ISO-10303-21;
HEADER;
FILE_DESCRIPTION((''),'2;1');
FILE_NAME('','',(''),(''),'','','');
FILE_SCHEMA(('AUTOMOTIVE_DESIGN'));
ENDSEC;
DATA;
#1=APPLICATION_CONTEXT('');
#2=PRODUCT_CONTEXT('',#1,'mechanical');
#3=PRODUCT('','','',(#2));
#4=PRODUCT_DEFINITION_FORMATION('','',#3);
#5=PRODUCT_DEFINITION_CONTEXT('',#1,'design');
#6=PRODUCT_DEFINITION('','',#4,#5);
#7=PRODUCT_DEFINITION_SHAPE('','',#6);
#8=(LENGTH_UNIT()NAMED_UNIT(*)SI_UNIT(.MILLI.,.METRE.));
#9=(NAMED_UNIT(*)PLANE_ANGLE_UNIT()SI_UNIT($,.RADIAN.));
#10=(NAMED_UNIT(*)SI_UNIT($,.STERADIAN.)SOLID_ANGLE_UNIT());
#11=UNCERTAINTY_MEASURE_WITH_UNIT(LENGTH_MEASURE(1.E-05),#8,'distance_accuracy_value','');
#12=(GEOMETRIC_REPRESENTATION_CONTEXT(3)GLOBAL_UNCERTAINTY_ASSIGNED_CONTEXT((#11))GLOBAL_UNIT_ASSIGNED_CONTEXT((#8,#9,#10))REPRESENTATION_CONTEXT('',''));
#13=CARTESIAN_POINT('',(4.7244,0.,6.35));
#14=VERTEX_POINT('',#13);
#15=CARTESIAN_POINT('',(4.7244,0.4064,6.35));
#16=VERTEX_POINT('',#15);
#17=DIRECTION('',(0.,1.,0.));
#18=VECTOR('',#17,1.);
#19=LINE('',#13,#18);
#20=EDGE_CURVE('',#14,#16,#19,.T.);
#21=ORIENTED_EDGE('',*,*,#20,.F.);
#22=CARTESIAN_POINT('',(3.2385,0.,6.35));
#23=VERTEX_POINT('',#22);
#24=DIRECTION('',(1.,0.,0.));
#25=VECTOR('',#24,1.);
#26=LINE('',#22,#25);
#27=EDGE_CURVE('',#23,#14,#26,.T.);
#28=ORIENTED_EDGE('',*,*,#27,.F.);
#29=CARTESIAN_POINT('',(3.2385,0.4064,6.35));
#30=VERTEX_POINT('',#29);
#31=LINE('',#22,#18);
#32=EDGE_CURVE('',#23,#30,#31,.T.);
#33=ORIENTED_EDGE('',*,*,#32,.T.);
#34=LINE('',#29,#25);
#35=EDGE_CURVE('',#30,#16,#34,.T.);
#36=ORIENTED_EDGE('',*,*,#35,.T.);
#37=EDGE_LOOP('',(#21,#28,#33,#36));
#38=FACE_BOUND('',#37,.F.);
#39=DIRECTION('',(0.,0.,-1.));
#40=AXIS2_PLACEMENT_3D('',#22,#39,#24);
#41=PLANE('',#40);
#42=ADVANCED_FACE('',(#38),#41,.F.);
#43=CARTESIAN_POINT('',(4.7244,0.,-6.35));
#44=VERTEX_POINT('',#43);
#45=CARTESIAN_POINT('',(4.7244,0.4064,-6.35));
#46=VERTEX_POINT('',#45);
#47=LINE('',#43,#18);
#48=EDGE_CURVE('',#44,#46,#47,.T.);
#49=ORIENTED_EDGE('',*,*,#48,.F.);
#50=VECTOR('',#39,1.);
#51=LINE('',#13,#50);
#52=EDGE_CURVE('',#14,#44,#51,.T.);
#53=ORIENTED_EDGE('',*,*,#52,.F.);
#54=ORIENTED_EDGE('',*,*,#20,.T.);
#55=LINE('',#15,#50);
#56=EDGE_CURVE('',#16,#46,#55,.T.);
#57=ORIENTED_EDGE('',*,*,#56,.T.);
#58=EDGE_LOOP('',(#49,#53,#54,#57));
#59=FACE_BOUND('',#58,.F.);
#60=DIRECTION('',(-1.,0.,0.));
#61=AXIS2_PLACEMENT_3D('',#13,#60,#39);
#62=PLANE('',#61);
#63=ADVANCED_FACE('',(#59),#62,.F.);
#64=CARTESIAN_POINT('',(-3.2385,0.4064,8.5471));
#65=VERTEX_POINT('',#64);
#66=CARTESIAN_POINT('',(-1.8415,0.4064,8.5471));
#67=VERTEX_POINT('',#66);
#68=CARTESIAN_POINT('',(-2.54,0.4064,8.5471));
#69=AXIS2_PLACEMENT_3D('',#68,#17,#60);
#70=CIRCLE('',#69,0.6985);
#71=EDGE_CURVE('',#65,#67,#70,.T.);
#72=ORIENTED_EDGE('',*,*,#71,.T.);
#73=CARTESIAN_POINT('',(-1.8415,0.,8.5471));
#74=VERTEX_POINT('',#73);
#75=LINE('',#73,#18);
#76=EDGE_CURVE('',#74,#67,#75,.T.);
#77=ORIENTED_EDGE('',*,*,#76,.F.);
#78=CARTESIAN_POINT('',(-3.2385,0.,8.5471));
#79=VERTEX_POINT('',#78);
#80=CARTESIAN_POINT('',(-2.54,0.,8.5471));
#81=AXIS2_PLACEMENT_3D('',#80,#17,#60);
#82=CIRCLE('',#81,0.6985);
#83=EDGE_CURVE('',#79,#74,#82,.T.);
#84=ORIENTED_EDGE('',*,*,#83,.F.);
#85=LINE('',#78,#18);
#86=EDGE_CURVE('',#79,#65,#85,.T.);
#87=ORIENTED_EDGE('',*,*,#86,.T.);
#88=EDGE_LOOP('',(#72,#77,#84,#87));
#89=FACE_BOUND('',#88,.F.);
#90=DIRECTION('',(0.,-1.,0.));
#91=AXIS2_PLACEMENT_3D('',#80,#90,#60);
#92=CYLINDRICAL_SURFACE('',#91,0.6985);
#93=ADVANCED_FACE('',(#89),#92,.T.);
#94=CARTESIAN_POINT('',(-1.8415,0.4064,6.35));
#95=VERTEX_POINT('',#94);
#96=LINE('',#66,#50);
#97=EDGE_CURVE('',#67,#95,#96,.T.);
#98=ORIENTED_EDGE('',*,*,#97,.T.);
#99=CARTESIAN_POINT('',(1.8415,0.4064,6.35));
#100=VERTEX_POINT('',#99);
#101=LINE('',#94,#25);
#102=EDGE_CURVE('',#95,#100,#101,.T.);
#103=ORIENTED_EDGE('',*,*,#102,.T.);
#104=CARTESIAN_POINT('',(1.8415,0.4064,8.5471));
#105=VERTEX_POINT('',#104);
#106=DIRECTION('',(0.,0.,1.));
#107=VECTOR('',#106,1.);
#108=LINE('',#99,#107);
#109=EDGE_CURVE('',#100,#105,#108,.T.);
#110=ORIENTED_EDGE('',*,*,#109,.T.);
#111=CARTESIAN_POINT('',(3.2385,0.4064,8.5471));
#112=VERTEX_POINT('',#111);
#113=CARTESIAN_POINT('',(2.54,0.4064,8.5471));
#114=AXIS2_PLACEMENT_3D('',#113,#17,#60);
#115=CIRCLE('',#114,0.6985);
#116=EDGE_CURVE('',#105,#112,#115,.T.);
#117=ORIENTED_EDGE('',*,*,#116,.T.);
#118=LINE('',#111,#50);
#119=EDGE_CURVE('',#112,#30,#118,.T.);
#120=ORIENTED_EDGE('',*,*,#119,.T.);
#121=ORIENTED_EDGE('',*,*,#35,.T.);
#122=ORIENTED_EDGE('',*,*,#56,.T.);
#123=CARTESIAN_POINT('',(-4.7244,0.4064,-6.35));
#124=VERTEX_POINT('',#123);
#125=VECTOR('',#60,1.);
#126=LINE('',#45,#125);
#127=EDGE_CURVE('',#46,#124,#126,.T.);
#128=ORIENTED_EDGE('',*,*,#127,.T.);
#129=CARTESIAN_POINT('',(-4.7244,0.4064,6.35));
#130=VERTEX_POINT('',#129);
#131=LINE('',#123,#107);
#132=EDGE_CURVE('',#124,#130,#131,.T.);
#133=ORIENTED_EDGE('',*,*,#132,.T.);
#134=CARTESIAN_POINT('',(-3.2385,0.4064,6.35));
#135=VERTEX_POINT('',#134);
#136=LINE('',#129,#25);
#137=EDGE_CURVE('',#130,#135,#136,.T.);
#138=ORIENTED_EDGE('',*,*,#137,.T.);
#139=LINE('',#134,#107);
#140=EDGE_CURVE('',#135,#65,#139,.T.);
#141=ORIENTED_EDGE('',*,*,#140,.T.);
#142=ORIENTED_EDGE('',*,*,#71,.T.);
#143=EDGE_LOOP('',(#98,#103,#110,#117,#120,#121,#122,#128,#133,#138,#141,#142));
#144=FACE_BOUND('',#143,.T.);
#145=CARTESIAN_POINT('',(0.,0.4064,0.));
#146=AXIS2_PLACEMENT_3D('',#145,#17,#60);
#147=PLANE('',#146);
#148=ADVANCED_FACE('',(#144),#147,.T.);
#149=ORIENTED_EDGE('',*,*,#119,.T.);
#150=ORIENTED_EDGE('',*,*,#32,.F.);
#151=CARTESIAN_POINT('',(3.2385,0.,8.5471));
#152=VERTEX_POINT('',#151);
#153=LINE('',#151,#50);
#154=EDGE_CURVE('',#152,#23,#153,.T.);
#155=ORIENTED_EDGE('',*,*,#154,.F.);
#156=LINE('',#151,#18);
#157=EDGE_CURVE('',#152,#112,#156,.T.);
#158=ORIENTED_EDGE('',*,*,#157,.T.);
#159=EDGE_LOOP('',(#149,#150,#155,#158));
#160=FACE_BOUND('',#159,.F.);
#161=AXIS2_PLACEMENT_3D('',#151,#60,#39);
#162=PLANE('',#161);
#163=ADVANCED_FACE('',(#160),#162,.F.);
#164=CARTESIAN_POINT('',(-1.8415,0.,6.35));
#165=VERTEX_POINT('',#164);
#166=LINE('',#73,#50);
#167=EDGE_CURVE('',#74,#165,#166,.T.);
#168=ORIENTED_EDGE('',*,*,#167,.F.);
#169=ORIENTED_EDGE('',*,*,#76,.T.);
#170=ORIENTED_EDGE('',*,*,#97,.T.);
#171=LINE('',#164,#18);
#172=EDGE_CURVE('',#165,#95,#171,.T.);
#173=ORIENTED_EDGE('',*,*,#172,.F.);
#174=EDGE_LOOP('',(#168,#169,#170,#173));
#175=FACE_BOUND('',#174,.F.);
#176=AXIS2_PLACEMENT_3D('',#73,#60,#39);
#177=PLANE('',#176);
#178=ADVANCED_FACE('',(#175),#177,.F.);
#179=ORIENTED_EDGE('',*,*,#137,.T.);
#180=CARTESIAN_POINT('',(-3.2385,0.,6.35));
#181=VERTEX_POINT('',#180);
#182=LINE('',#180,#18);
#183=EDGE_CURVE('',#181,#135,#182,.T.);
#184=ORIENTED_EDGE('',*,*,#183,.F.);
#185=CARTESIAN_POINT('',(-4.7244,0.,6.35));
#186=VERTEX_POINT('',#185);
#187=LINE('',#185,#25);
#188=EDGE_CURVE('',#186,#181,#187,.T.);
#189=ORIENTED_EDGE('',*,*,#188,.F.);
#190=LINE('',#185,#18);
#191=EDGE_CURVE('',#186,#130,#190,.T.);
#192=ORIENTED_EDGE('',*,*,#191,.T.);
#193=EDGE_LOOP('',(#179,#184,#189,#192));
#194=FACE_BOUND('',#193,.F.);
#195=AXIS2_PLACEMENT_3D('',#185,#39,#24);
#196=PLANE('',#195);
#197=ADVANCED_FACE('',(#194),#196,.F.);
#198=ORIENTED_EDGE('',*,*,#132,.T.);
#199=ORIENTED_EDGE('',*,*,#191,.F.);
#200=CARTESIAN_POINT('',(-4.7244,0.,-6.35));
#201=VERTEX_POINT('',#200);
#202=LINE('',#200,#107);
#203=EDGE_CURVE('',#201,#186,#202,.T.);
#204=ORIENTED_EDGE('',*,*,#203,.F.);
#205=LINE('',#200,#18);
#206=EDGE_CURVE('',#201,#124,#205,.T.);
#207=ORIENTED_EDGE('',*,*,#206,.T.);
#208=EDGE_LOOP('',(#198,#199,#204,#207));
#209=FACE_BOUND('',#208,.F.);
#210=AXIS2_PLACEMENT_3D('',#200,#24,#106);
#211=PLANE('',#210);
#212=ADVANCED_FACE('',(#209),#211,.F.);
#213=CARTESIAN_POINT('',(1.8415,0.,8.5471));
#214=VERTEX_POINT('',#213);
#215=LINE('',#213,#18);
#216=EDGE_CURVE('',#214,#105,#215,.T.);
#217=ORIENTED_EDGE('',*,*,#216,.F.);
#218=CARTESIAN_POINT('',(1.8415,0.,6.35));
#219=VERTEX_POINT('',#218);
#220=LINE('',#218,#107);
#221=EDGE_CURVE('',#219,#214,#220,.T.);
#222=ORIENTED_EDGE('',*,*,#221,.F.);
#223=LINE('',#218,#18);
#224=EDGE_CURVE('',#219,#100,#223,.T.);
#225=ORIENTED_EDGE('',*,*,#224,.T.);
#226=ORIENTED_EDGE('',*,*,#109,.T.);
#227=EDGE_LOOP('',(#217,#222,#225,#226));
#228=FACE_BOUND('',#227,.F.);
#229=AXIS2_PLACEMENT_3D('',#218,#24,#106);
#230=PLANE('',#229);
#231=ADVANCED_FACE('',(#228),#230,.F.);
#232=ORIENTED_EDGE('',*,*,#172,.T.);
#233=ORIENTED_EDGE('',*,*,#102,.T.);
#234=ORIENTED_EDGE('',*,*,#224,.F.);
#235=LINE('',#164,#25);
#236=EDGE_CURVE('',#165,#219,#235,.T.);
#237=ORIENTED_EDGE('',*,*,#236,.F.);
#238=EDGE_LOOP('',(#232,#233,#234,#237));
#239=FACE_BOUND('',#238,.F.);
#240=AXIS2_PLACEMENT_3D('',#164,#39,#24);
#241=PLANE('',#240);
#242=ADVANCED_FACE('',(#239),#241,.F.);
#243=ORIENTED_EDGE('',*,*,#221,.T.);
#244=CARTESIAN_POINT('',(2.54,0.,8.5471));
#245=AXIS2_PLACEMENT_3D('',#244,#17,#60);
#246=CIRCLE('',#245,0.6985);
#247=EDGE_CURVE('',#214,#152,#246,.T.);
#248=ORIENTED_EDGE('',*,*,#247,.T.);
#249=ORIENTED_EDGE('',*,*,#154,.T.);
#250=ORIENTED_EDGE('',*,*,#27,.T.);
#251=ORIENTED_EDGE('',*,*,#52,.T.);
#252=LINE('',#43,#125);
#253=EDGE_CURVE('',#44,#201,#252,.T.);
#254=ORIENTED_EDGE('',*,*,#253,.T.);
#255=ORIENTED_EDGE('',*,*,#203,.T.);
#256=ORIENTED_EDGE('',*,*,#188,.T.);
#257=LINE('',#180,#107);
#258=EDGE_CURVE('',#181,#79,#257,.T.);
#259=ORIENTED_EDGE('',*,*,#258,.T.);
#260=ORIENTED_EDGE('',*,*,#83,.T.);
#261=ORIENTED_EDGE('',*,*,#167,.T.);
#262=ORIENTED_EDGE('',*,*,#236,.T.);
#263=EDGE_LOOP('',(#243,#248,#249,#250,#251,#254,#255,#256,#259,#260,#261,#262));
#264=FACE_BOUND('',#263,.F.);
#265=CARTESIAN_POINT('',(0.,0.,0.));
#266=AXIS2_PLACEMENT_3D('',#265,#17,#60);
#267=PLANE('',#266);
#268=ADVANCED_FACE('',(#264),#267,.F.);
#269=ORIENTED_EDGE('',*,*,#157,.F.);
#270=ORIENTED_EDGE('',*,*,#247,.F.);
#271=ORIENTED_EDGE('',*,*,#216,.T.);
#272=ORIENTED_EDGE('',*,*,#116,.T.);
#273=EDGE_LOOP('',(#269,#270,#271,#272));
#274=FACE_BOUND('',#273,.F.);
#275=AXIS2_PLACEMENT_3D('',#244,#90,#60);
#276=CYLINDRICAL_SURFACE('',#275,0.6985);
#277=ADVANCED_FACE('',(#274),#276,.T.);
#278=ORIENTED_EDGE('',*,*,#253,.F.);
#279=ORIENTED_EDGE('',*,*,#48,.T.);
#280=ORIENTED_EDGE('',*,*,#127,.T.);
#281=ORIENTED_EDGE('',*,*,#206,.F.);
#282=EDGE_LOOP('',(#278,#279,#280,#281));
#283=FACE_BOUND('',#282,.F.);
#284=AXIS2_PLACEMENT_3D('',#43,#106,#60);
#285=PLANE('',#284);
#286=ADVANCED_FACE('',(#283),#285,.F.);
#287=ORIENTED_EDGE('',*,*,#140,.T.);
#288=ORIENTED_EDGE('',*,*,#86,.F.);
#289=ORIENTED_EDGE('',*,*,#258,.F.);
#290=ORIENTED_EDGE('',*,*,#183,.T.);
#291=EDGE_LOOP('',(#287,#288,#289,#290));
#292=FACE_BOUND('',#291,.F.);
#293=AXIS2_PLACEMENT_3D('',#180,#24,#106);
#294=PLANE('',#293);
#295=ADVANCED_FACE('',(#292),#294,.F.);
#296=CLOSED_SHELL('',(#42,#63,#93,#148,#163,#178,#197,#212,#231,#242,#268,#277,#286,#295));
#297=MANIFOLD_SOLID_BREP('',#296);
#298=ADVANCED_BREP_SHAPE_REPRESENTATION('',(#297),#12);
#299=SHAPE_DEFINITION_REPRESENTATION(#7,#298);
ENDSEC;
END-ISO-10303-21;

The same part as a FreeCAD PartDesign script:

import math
import FreeCAD as App
import Part
import Sketcher
from FreeCAD import Vector
Q = App.Units.Quantity

doc = App.newDocument("Part")
body = doc.addObject("PartDesign::Body", "Body")

# Sketch on XZ plane
sketch1 = body.newObject("Sketcher::SketchObject", "Sketch")
sketch1.AttachmentSupport = (doc.getObject("XZ_Plane"), [""])
sketch1.MapMode = "FlatFace"
sketch1.addGeometry([
    Part.LineSegment(Vector(-4.7, -6.3, 0), Vector(-4.7, 6.3, 0)),  # 0
    Part.LineSegment(Vector(-4.7, 6.3, 0), Vector(-3.2, 6.3, 0)),  # 1
    Part.LineSegment(Vector(-3.2, 6.3, 0), Vector(-3.2, 8.5, 0)),  # 2
    Part.ArcOfCircle(Part.Circle(Vector(-2.5, 8.5, 0), Vector(0, 0, 1), 0.7), math.radians(0), math.radians(180)),  # 3
    Part.LineSegment(Vector(-1.8, 8.5, 0), Vector(-1.8, 6.3, 0)),  # 4
    Part.LineSegment(Vector(-1.8, 6.3, 0), Vector(1.8, 6.3, 0)),  # 5
    Part.LineSegment(Vector(1.8, 6.3, 0), Vector(1.8, 8.5, 0)),  # 6
    Part.ArcOfCircle(Part.Circle(Vector(2.5, 8.5, 0), Vector(0, 0, 1), 0.7), math.radians(0), math.radians(180)),  # 7
    Part.LineSegment(Vector(3.2, 8.5, 0), Vector(3.2, 6.3, 0)),  # 8
    Part.LineSegment(Vector(3.2, 6.3, 0), Vector(4.7, 6.3, 0)),  # 9
    Part.LineSegment(Vector(4.7, 6.3, 0), Vector(4.7, -6.3, 0)),  # 10
    Part.LineSegment(Vector(4.7, -6.3, 0), Vector(-4.7, -6.3, 0)),  # 11
], False)
sketch1.addConstraint([
    Sketcher.Constraint("Coincident", 0, 2, 1, 1),
    Sketcher.Constraint("Coincident", 1, 2, 2, 1),
    Sketcher.Constraint("Tangent", 2, 2, 3, 2),
    Sketcher.Constraint("Tangent", 3, 1, 4, 1),
    Sketcher.Constraint("Coincident", 4, 2, 5, 1),
    Sketcher.Constraint("Coincident", 5, 2, 6, 1),
    Sketcher.Constraint("Tangent", 6, 2, 7, 2),
    Sketcher.Constraint("Tangent", 7, 1, 8, 1),
    Sketcher.Constraint("Coincident", 8, 2, 9, 1),
    Sketcher.Constraint("Coincident", 9, 2, 10, 1),
    Sketcher.Constraint("Coincident", 10, 2, 11, 1),
    Sketcher.Constraint("Coincident", 11, 2, 0, 1),
    Sketcher.Constraint("Vertical", 0),
    Sketcher.Constraint("Horizontal", 1),
    Sketcher.Constraint("Vertical", 2),
    Sketcher.Constraint("Vertical", 4),
    Sketcher.Constraint("Horizontal", 5),
    Sketcher.Constraint("Vertical", 6),
    Sketcher.Constraint("Vertical", 8),
    Sketcher.Constraint("Horizontal", 9),
    Sketcher.Constraint("Vertical", 10),
    Sketcher.Constraint("Horizontal", 11),
    Sketcher.Constraint("Equal", 3, 7),
    Sketcher.Constraint("Symmetric", 0, 2, 10, 2, -1, 1),
    Sketcher.Constraint("Symmetric", 3, 3, 7, 3, -2),
    Sketcher.Constraint("Horizontal", 1, 2, 4, 2),
    Sketcher.Constraint("Horizontal", 5, 2, 8, 2),
    Sketcher.Constraint("DistanceY", 0, 1, 0, 2, Q("0.5 in")),
    Sketcher.Constraint("DistanceX", 3, 3, -1, 1, Q("0.1 in")),
    Sketcher.Constraint("Radius", 3, Q("0.0275 in")),
    Sketcher.Constraint("DistanceX", 11, 2, 11, 1, Q("0.372 in")),
    Sketcher.Constraint("DistanceY", 2, 1, 2, 2, Q("0.0865 in")),
])
pad1 = body.newObject("PartDesign::Pad", "Pad")
pad1.Profile = sketch1
pad1.Length = Q("0.016 in")
pad1.Reversed = True

doc.recompute()
